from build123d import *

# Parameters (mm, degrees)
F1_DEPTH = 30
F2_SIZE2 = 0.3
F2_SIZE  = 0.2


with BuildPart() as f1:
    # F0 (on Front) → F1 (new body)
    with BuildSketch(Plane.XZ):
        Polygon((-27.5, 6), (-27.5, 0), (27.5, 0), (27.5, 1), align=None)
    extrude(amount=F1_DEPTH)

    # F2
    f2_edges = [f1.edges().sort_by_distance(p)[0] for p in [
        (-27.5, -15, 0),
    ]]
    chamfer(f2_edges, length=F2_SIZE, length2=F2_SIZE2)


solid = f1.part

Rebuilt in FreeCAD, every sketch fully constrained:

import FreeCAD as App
import Part
import Sketcher
from FreeCAD import Vector
Q = App.Units.Quantity


def edges_at(feature, points):
    """Names of the edges that pass closest to the given points."""
    edges = feature.Shape.Edges
    near = lambda p: min(range(len(edges)), key=lambda i: edges[i].distToShape(Part.Vertex(*p))[0])
    return sorted({f"Edge{near(p) + 1}" for p in points})

doc = App.newDocument("Part")
params = doc.addObject("Spreadsheet::Sheet", "Params")
for row, (alias, value) in enumerate([
    ("sketch1_width", "55 mm"),
    ("sketch1_height", "6 mm"),
    ("sketch1_height2", "1 mm"),
    ("pad1_length", "30 mm"),
    ("chamfer_size", "0.2 mm"),
    ("chamfer_size2", "0.3 mm"),
], start=1):
    params.set(f"A{row}", alias)
    params.set(f"B{row}", "=" + value)
    params.setAlias(f"B{row}", alias)

body = doc.addObject("PartDesign::Body", "Body")

# Sketch on XZ plane
sketch1 = body.newObject("Sketcher::SketchObject", "Sketch")
sketch1.AttachmentSupport = (doc.getObject("XZ_Plane"), [""])
sketch1.MapMode = "FlatFace"
sketch1.addGeometry([
    Part.LineSegment(Vector(-27.5, 6, 0), Vector(-27.5, 0, 0)),
    Part.LineSegment(Vector(-27.5, 0, 0), Vector(27.5, 0, 0)),
    Part.LineSegment(Vector(27.5, 0, 0), Vector(27.5, 1, 0)),
    Part.LineSegment(Vector(27.5, 1, 0), Vector(-27.5, 6, 0)),
], False)
sketch1.addConstraint([
    Sketcher.Constraint("Coincident", 0, 2, 1, 1),
    Sketcher.Constraint("Coincident", 1, 2, 2, 1),
    Sketcher.Constraint("Coincident", 2, 2, 3, 1),
    Sketcher.Constraint("Coincident", 3, 2, 0, 1),
    Sketcher.Constraint("Vertical", 0),
    Sketcher.Constraint("Horizontal", 1),
    Sketcher.Constraint("Vertical", 2),
    Sketcher.Constraint("Symmetric", 0, 2, 1, 2, -1, 1),
    Sketcher.Constraint("DistanceX", 1, 1, 1, 2, Q("55 mm")),
    Sketcher.Constraint("DistanceY", 0, 2, 0, 1, Q("6 mm")),
    Sketcher.Constraint("DistanceY", 2, 1, 2, 2, Q("1 mm")),
])
sketch1.setExpression("Constraints[8]", "Params.sketch1_width")
sketch1.setExpression("Constraints[9]", "Params.sketch1_height")
sketch1.setExpression("Constraints[10]", "Params.sketch1_height2")
pad1 = body.newObject("PartDesign::Pad", "Pad")
pad1.Profile = sketch1
pad1.setExpression("Length", "Params.pad1_length")
doc.recompute()

chamfer = body.newObject("PartDesign::Chamfer", "Chamfer")
chamfer.Base = (pad1, edges_at(pad1, [(-27.5, -15, 0)]))
chamfer.ChamferType = "Two distances"
chamfer.setExpression("Size", "Params.chamfer_size")
chamfer.setExpression("Size2", "Params.chamfer_size2")

doc.recompute()
